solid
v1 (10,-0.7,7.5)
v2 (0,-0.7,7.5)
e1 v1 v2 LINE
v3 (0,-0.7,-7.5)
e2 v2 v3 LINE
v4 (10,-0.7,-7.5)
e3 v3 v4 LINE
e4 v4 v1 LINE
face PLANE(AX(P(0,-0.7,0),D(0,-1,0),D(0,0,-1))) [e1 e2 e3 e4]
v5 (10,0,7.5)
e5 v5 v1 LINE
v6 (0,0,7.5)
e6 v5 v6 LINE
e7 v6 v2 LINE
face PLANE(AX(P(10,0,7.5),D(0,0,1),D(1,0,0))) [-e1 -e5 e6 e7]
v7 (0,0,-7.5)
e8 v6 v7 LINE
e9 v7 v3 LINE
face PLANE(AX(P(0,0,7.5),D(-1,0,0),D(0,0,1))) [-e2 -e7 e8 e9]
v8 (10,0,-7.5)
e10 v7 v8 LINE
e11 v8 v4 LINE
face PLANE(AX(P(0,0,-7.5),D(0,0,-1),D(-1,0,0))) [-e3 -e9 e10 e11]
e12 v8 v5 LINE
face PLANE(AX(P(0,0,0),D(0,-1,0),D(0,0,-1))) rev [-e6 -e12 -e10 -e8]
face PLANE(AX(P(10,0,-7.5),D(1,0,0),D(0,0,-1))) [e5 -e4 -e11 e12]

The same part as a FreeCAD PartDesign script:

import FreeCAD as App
import Part
import Sketcher

V = App.Vector
Q = App.Units.Quantity

doc = App.newDocument("Part")
body = doc.addObject("PartDesign::Body", "Body")

# Sketch on XZ plane
sketch1 = doc.addObject("Sketcher::SketchObject", "Sketch")
body.addObject(sketch1)
sketch1.AttachmentSupport = (doc.XZ_Plane, [""])
sketch1.MapMode = "FlatFace"
sketch1.AttachmentOffset = App.Placement(V(0, 0, 0.7), App.Rotation())
sketch1.addGeometry([
    Part.LineSegment(V(0, 8, 0), V(0, -8, 0)),
    Part.LineSegment(V(0, -8, 0), V(10, -8, 0)),
    Part.LineSegment(V(10, -8, 0), V(10, 8, 0)),
    Part.LineSegment(V(10, 8, 0), V(0, 8, 0)),
], False)
sketch1.addConstraint([
    Sketcher.Constraint("Coincident", 0, 2, 1, 1),
    Sketcher.Constraint("Coincident", 1, 2, 2, 1),
    Sketcher.Constraint("Coincident", 2, 2, 3, 1),
    Sketcher.Constraint("Coincident", 3, 2, 0, 1),
    Sketcher.Constraint("Vertical", 0),
    Sketcher.Constraint("Horizontal", 1),
    Sketcher.Constraint("Vertical", 2),
    Sketcher.Constraint("Horizontal", 3),
    Sketcher.Constraint("Symmetric", 0, 2, 3, 2, -1, 1),
    Sketcher.Constraint("DistanceX", 1, 1, 1, 2, Q("10 mm")),
    Sketcher.Constraint("DistanceY", 0, 2, 0, 1, Q("15 mm")),
])
pad1 = doc.addObject("PartDesign::Pad", "Pad")
body.addObject(pad1)
pad1.Profile = sketch1
pad1.Length = 0.7
pad1.Reversed = True

doc.recompute()
